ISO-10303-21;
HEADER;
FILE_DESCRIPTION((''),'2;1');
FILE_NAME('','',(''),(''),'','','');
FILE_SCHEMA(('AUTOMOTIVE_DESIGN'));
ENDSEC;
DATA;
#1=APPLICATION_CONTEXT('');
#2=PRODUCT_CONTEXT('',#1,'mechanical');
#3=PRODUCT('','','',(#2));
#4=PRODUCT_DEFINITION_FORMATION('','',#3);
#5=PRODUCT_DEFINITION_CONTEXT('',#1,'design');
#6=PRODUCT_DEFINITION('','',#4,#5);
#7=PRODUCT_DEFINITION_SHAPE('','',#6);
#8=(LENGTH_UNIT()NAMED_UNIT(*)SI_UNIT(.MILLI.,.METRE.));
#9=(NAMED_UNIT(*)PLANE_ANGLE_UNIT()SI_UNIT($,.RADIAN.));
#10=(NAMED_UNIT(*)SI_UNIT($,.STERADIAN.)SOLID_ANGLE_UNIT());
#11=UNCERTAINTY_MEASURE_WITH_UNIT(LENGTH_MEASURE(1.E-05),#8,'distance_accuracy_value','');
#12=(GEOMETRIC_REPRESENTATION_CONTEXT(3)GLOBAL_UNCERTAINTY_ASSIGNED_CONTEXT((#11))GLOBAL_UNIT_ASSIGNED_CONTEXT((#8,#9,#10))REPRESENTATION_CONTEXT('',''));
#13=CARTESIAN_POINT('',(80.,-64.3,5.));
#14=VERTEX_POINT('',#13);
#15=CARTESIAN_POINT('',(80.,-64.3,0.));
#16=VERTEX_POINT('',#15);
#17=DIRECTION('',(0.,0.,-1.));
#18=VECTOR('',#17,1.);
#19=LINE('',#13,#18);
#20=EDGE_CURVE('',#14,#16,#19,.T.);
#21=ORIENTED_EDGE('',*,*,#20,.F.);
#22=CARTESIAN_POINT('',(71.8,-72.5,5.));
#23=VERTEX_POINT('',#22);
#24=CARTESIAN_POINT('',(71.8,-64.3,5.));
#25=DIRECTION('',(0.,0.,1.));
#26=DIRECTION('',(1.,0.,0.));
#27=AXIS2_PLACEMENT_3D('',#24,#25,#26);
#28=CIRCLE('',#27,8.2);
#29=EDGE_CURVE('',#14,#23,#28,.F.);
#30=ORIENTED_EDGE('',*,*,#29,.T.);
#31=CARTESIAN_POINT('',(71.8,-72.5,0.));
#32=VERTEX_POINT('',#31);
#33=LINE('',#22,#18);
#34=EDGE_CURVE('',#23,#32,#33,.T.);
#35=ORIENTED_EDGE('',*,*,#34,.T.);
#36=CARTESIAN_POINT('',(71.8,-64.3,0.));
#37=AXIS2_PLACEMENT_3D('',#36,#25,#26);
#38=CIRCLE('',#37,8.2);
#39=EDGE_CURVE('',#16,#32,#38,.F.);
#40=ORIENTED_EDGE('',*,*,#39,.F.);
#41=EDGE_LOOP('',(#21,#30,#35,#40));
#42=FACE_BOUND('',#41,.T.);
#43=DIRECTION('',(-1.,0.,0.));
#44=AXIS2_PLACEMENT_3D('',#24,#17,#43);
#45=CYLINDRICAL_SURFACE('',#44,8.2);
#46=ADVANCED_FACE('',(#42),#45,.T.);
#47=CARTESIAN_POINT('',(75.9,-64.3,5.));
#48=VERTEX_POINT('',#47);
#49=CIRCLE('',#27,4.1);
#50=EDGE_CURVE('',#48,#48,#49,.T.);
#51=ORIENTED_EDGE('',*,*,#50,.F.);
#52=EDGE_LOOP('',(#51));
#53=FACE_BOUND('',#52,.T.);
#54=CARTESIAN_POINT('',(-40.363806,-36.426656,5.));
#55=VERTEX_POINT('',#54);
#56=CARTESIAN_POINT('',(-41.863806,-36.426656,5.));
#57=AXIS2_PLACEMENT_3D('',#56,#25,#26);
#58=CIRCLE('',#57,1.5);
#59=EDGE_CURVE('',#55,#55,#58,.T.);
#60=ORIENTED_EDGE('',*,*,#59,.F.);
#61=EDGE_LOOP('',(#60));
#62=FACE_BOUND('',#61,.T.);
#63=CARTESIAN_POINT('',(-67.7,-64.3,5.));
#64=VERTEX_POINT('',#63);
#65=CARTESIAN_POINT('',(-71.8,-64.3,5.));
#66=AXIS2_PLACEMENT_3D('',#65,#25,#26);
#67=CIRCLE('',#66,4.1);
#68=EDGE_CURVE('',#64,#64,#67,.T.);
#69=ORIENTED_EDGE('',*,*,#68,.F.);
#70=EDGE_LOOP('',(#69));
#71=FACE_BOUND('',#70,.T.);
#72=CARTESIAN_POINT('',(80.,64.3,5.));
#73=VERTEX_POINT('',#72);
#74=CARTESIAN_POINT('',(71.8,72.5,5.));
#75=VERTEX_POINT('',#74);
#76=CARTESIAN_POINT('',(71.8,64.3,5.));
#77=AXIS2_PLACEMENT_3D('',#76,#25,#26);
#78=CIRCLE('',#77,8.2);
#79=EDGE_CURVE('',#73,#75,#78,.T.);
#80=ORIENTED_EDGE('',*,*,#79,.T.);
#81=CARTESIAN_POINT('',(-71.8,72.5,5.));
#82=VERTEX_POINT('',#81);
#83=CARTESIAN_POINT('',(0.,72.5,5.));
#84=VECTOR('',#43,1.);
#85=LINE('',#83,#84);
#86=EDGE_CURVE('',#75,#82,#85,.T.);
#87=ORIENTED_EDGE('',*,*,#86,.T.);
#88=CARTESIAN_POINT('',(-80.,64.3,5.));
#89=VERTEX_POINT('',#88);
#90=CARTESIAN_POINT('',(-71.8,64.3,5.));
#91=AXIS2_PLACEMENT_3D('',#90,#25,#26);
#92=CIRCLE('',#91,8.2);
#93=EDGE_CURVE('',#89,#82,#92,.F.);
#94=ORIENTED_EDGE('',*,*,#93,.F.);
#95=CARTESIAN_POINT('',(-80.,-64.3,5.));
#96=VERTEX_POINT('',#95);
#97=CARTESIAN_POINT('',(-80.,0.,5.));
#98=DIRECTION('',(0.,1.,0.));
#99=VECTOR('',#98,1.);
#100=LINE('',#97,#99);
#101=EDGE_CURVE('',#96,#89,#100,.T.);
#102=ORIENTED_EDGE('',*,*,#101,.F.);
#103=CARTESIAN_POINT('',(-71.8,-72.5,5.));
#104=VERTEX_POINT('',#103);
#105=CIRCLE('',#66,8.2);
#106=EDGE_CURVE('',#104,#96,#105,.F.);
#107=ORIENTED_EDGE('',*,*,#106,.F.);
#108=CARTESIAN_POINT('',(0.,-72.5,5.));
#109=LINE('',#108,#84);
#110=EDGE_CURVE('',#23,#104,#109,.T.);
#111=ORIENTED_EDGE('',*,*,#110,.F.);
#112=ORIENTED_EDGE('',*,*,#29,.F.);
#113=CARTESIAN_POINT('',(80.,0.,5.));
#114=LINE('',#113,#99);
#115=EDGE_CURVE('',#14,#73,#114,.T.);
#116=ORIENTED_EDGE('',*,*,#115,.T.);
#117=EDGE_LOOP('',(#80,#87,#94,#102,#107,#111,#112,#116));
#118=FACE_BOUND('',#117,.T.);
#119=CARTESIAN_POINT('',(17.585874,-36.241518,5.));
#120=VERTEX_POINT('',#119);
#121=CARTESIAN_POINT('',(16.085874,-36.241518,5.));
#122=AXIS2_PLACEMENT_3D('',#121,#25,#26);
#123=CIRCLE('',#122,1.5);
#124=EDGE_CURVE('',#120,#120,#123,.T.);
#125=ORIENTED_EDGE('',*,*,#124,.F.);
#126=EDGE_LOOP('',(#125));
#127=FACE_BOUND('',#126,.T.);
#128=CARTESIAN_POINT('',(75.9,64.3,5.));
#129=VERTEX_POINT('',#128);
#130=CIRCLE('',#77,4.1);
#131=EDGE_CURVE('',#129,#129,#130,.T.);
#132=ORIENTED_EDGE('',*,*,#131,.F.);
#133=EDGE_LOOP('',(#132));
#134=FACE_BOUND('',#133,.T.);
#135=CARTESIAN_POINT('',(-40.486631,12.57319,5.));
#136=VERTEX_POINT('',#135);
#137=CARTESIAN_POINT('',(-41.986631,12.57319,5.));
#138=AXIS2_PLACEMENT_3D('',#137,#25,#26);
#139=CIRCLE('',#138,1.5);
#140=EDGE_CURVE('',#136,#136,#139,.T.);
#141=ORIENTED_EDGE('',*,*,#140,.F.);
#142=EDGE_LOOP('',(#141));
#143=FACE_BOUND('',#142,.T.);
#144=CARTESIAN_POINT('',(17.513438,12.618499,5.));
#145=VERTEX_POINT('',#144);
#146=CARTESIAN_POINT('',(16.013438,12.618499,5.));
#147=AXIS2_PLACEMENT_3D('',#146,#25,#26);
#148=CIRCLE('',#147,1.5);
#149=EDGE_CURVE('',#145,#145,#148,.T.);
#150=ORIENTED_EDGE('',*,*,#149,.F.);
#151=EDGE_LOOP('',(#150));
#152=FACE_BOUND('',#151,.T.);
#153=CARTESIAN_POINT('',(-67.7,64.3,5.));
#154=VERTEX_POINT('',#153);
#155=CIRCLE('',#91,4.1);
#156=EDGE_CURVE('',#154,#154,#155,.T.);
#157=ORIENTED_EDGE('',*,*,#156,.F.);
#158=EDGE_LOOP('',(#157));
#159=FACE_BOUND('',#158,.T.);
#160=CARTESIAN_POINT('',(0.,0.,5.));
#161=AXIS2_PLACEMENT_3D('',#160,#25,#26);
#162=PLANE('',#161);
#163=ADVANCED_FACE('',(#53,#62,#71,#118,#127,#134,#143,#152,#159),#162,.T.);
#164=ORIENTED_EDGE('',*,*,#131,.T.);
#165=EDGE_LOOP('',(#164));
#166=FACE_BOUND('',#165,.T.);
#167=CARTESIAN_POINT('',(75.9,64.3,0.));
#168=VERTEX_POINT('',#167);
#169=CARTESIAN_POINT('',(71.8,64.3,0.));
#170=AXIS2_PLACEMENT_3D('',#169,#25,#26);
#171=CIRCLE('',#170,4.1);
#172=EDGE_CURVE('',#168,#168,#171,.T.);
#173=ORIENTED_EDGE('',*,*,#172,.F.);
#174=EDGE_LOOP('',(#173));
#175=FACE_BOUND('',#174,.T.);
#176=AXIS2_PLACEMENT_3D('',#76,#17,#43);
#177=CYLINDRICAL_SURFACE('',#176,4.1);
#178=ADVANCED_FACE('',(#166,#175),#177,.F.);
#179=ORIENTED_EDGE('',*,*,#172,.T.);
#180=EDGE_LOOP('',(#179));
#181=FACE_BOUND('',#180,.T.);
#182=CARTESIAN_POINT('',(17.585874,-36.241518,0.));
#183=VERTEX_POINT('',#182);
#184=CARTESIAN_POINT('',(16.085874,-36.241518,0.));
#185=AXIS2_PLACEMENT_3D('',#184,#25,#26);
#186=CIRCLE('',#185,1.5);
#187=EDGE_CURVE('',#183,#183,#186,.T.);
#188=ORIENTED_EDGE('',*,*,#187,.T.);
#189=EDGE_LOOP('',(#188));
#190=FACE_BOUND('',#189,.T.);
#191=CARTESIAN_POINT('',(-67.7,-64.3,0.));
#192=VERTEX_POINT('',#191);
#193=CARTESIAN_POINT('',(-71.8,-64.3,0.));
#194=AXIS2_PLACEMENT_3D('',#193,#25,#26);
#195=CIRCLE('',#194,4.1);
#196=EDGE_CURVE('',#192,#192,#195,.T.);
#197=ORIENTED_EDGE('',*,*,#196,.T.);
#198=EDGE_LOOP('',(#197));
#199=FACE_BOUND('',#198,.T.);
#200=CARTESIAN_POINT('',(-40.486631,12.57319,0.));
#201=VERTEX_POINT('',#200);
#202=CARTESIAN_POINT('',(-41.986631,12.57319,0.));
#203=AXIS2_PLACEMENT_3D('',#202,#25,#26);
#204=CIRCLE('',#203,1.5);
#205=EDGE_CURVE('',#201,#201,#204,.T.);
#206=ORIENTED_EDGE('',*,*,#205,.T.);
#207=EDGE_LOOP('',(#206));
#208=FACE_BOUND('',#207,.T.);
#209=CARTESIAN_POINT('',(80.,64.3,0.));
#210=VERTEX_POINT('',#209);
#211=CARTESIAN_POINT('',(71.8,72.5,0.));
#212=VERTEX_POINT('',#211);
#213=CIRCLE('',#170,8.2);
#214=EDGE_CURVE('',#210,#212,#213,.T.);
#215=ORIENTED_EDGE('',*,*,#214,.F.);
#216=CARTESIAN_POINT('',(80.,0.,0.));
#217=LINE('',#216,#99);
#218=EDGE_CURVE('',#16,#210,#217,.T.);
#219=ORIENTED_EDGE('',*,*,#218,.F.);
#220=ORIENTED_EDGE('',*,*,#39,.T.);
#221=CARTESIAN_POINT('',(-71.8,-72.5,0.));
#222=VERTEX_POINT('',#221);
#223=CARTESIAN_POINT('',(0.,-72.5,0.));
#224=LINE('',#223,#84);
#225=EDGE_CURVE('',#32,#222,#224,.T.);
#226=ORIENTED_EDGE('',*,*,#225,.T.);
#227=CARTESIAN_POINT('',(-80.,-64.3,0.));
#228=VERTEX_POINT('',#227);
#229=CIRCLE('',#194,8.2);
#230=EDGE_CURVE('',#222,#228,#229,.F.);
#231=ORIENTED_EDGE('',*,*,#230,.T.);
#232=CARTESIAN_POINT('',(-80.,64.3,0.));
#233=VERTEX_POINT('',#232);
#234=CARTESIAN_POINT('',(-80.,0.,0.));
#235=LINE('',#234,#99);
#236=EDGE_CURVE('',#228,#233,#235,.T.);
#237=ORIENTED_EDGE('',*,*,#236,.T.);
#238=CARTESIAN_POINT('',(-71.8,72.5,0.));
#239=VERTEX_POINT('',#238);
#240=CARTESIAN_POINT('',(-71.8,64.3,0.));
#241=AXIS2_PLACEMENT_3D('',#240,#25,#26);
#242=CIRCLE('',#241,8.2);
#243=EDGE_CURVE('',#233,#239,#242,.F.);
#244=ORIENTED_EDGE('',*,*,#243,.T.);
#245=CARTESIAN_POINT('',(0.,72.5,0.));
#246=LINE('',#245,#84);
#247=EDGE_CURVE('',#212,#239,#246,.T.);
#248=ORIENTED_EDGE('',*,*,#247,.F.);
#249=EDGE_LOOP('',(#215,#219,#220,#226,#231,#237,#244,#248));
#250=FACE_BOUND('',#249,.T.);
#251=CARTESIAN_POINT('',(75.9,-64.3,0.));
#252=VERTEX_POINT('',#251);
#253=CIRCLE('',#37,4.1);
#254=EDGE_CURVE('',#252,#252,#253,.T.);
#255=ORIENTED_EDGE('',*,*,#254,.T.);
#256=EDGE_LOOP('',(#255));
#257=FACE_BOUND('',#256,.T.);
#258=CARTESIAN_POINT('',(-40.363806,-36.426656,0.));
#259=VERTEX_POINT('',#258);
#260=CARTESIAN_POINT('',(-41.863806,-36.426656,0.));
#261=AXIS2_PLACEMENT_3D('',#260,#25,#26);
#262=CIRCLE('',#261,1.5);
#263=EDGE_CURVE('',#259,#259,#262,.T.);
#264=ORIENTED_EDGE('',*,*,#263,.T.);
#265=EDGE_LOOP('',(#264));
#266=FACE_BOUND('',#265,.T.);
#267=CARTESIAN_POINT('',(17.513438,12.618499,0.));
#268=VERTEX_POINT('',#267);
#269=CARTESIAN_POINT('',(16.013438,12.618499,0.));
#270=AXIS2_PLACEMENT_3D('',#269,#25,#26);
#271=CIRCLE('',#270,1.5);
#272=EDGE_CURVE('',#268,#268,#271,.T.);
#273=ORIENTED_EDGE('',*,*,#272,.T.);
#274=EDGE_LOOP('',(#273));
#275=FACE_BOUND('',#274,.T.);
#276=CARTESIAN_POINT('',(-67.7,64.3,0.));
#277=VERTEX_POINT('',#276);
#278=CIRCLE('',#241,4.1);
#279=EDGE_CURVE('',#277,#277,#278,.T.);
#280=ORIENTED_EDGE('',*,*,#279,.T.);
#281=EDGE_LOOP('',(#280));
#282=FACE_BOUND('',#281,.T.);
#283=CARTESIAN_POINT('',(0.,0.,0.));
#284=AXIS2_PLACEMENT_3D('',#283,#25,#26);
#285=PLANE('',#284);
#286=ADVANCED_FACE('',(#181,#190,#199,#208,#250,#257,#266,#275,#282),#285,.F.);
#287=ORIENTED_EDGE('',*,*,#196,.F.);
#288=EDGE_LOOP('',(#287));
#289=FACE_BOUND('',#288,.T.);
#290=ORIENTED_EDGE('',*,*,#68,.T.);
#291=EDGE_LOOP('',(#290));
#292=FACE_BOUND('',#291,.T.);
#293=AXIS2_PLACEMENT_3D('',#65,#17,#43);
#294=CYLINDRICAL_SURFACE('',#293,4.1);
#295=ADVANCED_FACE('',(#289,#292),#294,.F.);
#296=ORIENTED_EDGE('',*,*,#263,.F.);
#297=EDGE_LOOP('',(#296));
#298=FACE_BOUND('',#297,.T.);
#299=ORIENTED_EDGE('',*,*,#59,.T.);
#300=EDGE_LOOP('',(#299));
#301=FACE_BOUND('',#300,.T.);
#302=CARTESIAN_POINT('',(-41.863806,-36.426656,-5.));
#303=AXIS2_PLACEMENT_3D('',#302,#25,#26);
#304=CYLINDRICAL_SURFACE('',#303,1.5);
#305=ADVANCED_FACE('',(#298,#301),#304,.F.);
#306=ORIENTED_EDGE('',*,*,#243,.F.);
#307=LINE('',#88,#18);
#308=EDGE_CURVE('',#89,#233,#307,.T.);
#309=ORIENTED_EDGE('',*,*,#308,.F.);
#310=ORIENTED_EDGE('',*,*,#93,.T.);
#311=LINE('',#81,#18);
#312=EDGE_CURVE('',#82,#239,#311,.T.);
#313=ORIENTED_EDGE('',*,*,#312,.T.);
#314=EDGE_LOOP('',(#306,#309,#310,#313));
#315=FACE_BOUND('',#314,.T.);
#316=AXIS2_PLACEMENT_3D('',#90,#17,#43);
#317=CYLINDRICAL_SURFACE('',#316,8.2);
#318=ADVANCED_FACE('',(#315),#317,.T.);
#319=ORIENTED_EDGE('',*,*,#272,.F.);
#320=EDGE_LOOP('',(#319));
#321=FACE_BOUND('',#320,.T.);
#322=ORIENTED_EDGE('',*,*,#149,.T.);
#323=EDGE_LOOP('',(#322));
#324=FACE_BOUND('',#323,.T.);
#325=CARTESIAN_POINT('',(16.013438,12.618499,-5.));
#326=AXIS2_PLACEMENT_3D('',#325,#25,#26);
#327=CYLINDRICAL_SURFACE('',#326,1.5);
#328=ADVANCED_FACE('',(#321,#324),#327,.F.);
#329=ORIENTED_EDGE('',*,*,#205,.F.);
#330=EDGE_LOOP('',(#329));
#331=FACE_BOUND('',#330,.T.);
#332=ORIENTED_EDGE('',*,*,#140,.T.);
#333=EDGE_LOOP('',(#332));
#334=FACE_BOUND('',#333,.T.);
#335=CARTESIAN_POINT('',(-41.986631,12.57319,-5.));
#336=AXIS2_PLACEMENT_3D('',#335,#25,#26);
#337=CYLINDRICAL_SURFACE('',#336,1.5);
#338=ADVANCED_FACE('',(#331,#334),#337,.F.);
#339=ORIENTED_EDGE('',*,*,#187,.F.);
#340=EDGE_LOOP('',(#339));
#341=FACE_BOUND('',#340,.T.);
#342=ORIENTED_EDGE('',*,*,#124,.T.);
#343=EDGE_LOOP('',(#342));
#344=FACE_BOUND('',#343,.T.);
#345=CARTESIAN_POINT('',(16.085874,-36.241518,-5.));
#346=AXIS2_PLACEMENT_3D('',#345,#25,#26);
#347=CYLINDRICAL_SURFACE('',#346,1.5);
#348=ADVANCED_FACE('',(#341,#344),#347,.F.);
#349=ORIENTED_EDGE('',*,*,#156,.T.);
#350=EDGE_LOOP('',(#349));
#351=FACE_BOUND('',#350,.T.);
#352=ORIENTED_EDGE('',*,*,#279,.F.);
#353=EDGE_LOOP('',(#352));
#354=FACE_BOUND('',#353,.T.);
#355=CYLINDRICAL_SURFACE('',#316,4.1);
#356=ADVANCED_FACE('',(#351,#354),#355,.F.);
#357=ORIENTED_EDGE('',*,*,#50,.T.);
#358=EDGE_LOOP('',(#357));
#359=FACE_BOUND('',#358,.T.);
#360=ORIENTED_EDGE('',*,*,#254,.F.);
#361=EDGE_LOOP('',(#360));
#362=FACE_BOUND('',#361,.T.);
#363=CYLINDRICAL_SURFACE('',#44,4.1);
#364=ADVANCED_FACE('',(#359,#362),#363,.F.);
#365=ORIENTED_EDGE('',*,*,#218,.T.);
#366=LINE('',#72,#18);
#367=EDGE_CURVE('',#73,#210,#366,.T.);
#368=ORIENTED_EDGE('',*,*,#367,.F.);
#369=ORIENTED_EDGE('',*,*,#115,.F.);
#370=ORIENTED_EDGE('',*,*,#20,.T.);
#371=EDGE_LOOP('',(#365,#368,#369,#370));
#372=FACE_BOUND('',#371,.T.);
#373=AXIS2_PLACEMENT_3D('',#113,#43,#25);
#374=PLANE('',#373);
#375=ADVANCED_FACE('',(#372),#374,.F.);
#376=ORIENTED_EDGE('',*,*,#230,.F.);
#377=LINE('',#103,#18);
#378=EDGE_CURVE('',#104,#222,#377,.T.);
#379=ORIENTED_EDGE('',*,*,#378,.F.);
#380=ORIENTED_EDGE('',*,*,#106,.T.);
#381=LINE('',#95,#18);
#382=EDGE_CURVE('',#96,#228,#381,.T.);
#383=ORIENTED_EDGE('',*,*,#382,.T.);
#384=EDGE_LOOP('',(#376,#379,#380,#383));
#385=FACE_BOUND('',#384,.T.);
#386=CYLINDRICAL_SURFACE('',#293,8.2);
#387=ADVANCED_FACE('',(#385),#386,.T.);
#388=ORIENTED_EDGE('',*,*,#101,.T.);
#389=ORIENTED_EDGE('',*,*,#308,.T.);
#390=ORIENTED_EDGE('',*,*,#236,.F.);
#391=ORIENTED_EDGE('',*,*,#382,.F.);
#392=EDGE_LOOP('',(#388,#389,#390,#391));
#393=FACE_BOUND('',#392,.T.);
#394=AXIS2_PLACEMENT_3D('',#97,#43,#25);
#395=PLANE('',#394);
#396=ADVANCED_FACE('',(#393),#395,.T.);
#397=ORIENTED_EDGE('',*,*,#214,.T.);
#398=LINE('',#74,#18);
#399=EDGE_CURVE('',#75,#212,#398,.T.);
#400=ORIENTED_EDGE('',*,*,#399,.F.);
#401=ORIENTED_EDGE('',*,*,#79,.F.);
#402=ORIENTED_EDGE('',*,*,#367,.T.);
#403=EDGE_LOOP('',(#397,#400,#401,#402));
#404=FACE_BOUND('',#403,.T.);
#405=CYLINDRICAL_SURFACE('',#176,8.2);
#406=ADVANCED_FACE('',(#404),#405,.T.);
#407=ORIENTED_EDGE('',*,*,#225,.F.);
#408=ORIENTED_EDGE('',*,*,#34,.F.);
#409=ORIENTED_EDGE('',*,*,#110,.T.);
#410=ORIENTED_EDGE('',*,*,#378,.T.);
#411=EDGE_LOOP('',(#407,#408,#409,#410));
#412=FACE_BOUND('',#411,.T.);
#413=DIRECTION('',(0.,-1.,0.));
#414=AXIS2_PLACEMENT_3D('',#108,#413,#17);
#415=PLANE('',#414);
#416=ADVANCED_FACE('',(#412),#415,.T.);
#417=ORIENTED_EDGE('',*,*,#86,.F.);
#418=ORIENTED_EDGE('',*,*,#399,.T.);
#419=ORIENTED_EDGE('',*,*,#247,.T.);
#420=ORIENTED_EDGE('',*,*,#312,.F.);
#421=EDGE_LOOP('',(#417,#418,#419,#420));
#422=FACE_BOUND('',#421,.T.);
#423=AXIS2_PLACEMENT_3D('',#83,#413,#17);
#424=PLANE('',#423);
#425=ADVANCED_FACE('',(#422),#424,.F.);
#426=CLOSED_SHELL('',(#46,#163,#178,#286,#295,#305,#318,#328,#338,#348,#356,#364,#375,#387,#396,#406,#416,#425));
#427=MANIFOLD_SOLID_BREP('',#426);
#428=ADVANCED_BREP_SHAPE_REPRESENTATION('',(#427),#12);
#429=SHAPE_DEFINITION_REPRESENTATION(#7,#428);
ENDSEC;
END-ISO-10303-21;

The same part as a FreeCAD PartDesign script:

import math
import FreeCAD as App
import Part
import Sketcher

V = App.Vector

doc = App.newDocument("Part")
body = doc.addObject("PartDesign::Body", "Body")

sketch1 = body.newObject("Sketcher::SketchObject", "Sketch")
sketch1.AttachmentSupport = (doc.getObject("XY_Plane"), [""])
sketch1.MapMode = "FlatFace"
sketch1.addGeometry(Part.ArcOfCircle(Part.Circle(V(-71.8, -64.3, 0), V(0, 0, 1), 8.2), math.radians(180), math.radians(270)), False)
sketch1.addGeometry(Part.LineSegment(V(-71.8, -72.5, 0), V(71.8, -72.5, 0)), False)
sketch1.addGeometry(Part.ArcOfCircle(Part.Circle(V(71.8, -64.3, 0), V(0, 0, 1), 8.2), math.radians(-90), math.radians(0)), False)
sketch1.addGeometry(Part.LineSegment(V(80, -64.3, 0), V(80, 64.3, 0)), False)
sketch1.addGeometry(Part.ArcOfCircle(Part.Circle(V(71.8, 64.3, 0), V(0, 0, 1), 8.2), math.radians(0), math.radians(90)), False)
sketch1.addGeometry(Part.LineSegment(V(71.8, 72.5, 0), V(-71.8, 72.5, 0)), False)
sketch1.addGeometry(Part.ArcOfCircle(Part.Circle(V(-71.8, 64.3, 0), V(0, 0, 1), 8.2), math.radians(90), math.radians(180)), False)
sketch1.addGeometry(Part.LineSegment(V(-80, 64.3, 0), V(-80, -64.3, 0)), False)
sketch1.addGeometry(Part.Circle(V(71.8, 64.3, 0), V(0, 0, 1), 4.1), False)
sketch1.addGeometry(Part.Circle(V(71.8, -64.3, 0), V(0, 0, 1), 4.1), False)
sketch1.addGeometry(Part.Circle(V(-71.8, 64.3, 0), V(0, 0, 1), 4.1), False)
sketch1.addGeometry(Part.Circle(V(-71.8, -64.3, 0), V(0, 0, 1), 4.1), False)
sketch1.addConstraint(Sketcher.Constraint("Tangent", 0, 2, 1, 1))
sketch1.addConstraint(Sketcher.Constraint("Tangent", 1, 2, 2, 1))
sketch1.addConstraint(Sketcher.Constraint("Tangent", 2, 2, 3, 1))
sketch1.addConstraint(Sketcher.Constraint("Tangent", 3, 2, 4, 1))
sketch1.addConstraint(Sketcher.Constraint("Tangent", 4, 2, 5, 1))
sketch1.addConstraint(Sketcher.Constraint("Tangent", 5, 2, 6, 1))
sketch1.addConstraint(Sketcher.Constraint("Tangent", 6, 2, 7, 1))
sketch1.addConstraint(Sketcher.Constraint("Tangent", 7, 2, 0, 1))
sketch1.addConstraint(Sketcher.Constraint("Horizontal", 1))
sketch1.addConstraint(Sketcher.Constraint("Vertical", 3))
sketch1.addConstraint(Sketcher.Constraint("Horizontal", 5))
sketch1.addConstraint(Sketcher.Constraint("Vertical", 7))
sketch1.addConstraint(Sketcher.Constraint("Coincident", 8, 3, 4, 3))
sketch1.addConstraint(Sketcher.Constraint("Coincident", 9, 3, 2, 3))
sketch1.addConstraint(Sketcher.Constraint("Coincident", 10, 3, 6, 3))
sketch1.addConstraint(Sketcher.Constraint("Coincident", 11, 3, 0, 3))
sketch1.addConstraint(Sketcher.Constraint("Equal", 0, 2))
sketch1.addConstraint(Sketcher.Constraint("Equal", 2, 4))
sketch1.addConstraint(Sketcher.Constraint("Equal", 4, 6))
sketch1.addConstraint(Sketcher.Constraint("Equal", 8, 9))
sketch1.addConstraint(Sketcher.Constraint("Equal", 9, 10))
sketch1.addConstraint(Sketcher.Constraint("Equal", 10, 11))
sketch1.addConstraint(Sketcher.Constraint("Symmetric", 0, 3, 4, 3, -1, 1))
sketch1.addConstraint(Sketcher.Constraint("Diameter", 8, 8.2))
sketch1.addConstraint(Sketcher.Constraint("Radius", 0, 8.2))
sketch1.addConstraint(Sketcher.Constraint("DistanceX", 1, 1, 1, 2, 143.6))
sketch1.addConstraint(Sketcher.Constraint("DistanceY", 3, 1, 3, 2, 128.6))
pad1 = body.newObject("PartDesign::Pad", "Pad")
pad1.Profile = sketch1
pad1.Length = 5

sketch2 = body.newObject("Sketcher::SketchObject", "Sketch001")
sketch2.AttachmentSupport = (doc.getObject("XY_Plane"), [""])
sketch2.MapMode = "FlatFace"
sketch2.AttachmentOffset = App.Placement(V(0, 0, 5), App.Rotation())
sketch2.addGeometry(Part.Circle(V(-42, 12.6, 0), V(0, 0, 1), 1.5), False)
sketch2.addGeometry(Part.Circle(V(16, 12.6, 0), V(0, 0, 1), 1.5), False)
sketch2.addGeometry(Part.Circle(V(16.1, -36.2, 0), V(0, 0, 1), 1.5), False)
sketch2.addGeometry(Part.Circle(V(-41.9, -36.4, 0), V(0, 0, 1), 1.5), False)
sketch2.addConstraint(Sketcher.Constraint("Equal", 0, 1))
sketch2.addConstraint(Sketcher.Constraint("Equal", 1, 2))
sketch2.addConstraint(Sketcher.Constraint("Equal", 2, 3))
sketch2.addConstraint(Sketcher.Constraint("Diameter", 0, 3.0))
sketch2.addConstraint(Sketcher.Constraint("DistanceY", -1, 1, 1, 3, 12.618499))
sketch2.addConstraint(Sketcher.Constraint("DistanceX", 0, 3, -1, 1, 41.986631))
sketch2.addConstraint(Sketcher.Constraint("DistanceY", -1, 1, 0, 3, 12.57319))
sketch2.addConstraint(Sketcher.Constraint("DistanceY", 2, 3, -1, 1, 36.241518))
sketch2.addConstraint(Sketcher.Constraint("DistanceX", 0, 3, 1, 3, 58.000069))
sketch2.addConstraint(Sketcher.Constraint("DistanceX", 3, 3, 2, 3, 57.94968))
sketch2.addConstraint(Sketcher.Constraint("DistanceX", -1, 1, 2, 3, 16.085874))
sketch2.addConstraint(Sketcher.Constraint("DistanceY", 3, 3, -1, 1, 36.426656))
pocket1 = body.newObject("PartDesign::Pocket", "Pocket")
pocket1.Profile = sketch2
pocket1.Length = 10

doc.recompute()
